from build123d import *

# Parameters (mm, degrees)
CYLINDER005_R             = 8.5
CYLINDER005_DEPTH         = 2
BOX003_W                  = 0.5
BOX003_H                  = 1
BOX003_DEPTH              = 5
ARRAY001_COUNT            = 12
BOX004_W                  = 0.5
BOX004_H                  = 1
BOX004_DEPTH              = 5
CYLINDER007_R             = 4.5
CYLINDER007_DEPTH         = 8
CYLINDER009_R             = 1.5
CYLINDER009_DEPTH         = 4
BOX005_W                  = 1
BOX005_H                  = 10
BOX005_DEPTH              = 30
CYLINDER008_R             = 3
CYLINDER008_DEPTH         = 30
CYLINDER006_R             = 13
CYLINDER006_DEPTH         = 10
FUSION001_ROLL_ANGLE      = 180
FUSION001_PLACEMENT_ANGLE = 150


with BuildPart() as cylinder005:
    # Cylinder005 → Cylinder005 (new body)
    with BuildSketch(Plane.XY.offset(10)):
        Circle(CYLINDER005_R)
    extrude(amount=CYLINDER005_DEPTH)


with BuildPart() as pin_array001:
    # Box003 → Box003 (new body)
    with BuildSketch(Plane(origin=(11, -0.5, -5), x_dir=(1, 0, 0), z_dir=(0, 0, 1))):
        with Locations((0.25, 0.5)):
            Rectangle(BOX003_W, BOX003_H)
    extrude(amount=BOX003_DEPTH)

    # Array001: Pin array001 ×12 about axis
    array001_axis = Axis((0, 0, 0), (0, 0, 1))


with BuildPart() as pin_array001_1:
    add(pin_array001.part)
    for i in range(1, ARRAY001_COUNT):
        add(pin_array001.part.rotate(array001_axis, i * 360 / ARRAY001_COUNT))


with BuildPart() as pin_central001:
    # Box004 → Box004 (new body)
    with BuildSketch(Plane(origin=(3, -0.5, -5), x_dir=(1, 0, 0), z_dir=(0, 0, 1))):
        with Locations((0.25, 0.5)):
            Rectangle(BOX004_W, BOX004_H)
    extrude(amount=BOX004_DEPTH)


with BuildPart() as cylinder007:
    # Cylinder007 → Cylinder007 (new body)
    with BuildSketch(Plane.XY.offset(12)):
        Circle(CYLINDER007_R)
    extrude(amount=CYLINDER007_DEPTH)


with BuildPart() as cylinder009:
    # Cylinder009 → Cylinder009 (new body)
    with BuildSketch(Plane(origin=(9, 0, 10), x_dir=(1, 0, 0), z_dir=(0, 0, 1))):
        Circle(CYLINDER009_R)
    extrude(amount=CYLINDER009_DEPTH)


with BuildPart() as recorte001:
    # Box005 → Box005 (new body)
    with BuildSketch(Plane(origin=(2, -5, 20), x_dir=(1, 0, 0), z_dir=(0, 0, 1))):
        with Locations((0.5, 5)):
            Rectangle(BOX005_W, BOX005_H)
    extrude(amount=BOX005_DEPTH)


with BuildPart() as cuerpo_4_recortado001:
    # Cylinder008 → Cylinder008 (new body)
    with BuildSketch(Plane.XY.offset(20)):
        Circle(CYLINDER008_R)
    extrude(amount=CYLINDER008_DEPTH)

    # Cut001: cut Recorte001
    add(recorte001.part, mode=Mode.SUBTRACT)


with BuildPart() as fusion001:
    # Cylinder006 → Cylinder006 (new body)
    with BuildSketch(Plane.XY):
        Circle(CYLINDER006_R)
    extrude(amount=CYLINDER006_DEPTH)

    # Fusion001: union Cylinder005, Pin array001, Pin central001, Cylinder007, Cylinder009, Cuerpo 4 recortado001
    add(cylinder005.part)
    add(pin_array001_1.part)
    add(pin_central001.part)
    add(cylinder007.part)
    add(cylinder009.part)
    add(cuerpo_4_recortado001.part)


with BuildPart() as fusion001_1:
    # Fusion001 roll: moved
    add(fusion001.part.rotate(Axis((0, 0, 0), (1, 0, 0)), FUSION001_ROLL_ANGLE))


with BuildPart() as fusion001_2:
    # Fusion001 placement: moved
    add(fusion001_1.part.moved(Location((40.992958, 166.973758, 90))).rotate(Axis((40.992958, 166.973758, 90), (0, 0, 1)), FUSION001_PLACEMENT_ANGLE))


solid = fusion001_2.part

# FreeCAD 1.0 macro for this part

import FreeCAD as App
import Part
import Sketcher

V = App.Vector
Q = App.Units.Quantity


def add_polygon(sketch, points):
    """Adds a closed chain of lines whose ends are joined by coincident constraints."""
    first, n = sketch.GeometryCount, len(points)
    for a, b in zip(points, points[1:] + points[:1]):
        sketch.addGeometry(Part.LineSegment(App.Vector(*a, 0), App.Vector(*b, 0)), False)
    for i in range(n):
        sketch.addConstraint(Sketcher.Constraint("Coincident", first + i, 2, first + (i + 1) % n, 1))

doc = App.newDocument("Part")
body = doc.addObject("PartDesign::Body", "Body")

sketch1 = body.newObject("Sketcher::SketchObject", "Sketch")
sketch1.AttachmentSupport = (doc.getObject("XY_Plane"), [""])
sketch1.MapMode = "FlatFace"
sketch1.AttachmentOffset = App.Placement(V(0, 0, 10), App.Rotation())
sketch1.addGeometry(Part.Circle(V(0, 0, 0), V(0, 0, 1), 8), False)
sketch1.addConstraint(Sketcher.Constraint("Coincident", 0, 3, -1, 1))
sketch1.addConstraint(Sketcher.Constraint("Diameter", 0, Q("17 mm")))
pad1 = body.newObject("PartDesign::Pad", "Pad")
pad1.Profile = sketch1
pad1.Length = 2
body2 = doc.addObject("PartDesign::Body", "Body001")

sketch2 = body2.newObject("Sketcher::SketchObject", "Sketch001")
sketch2.AttachmentSupport = (doc.getObject("XY_Plane001"), [""])
sketch2.MapMode = "FlatFace"
sketch2.AttachmentOffset = App.Placement(V(0, 0, -5), App.Rotation())
add_polygon(sketch2, [(11, 0.5), (11, -0.5), (11.5, -0.5), (11.5, 0.5)])
sketch2.addConstraint(Sketcher.Constraint("Vertical", 0))
sketch2.addConstraint(Sketcher.Constraint("Horizontal", 1))
sketch2.addConstraint(Sketcher.Constraint("Vertical", 2))
sketch2.addConstraint(Sketcher.Constraint("Horizontal", 3))
sketch2.addConstraint(Sketcher.Constraint("DistanceY", 0, 2, 0, 1, Q("1 mm")))
sketch2.addConstraint(Sketcher.Constraint("DistanceX", 1, 1, 1, 2, Q("0.5 mm")))
sketch2.addConstraint(Sketcher.Constraint("DistanceX", -1, 1, 0, 2, Q("11 mm")))
sketch2.addConstraint(Sketcher.Constraint("DistanceY", 0, 2, -1, 1, Q("0.5 mm")))
pad2 = body2.newObject("PartDesign::Pad", "Pad001")
pad2.Profile = sketch2
pad2.Length = 5
body3 = doc.addObject("PartDesign::Body", "Body002")
body3.AllowCompound = True
doc.recompute()

body3.BaseFeature = body2
doc.recompute()

body4 = doc.addObject("PartDesign::Body", "Body003")
body4.BaseFeature = body2
body4.Placement = App.Placement(V(0, 0, 0), App.Rotation(V(0, 0, 1), 30))
boolean = body3.newObject("PartDesign::Boolean", "Boolean")
boolean.Type = "Fuse"
boolean.addObjects([body4])
doc.recompute()

body5 = doc.addObject("PartDesign::Body", "Body004")
body5.BaseFeature = body2
body5.Placement = App.Placement(V(0, 0, 0), App.Rotation(V(0, 0, 1), 60))
boolean2 = body3.newObject("PartDesign::Boolean", "Boolean001")
boolean2.Type = "Fuse"
boolean2.addObjects([body5])
doc.recompute()

body6 = doc.addObject("PartDesign::Body", "Body005")
body6.BaseFeature = body2
body6.Placement = App.Placement(V(0, 0, 0), App.Rotation(V(0, 0, 1), 90))
boolean3 = body3.newObject("PartDesign::Boolean", "Boolean002")
boolean3.Type = "Fuse"
boolean3.addObjects([body6])
doc.recompute()

body7 = doc.addObject("PartDesign::Body", "Body006")
body7.BaseFeature = body2
body7.Placement = App.Placement(V(0, 0, 0), App.Rotation(V(0, 0, 1), 120))
boolean4 = body3.newObject("PartDesign::Boolean", "Boolean003")
boolean4.Type = "Fuse"
boolean4.addObjects([body7])
doc.recompute()

body8 = doc.addObject("PartDesign::Body", "Body007")
body8.BaseFeature = body2
body8.Placement = App.Placement(V(0, 0, 0), App.Rotation(V(0, 0, 1), 150))
boolean5 = body3.newObject("PartDesign::Boolean", "Boolean004")
boolean5.Type = "Fuse"
boolean5.addObjects([body8])
doc.recompute()

body9 = doc.addObject("PartDesign::Body", "Body008")
body9.BaseFeature = body2
body9.Placement = App.Placement(V(0, 0, 0), App.Rotation(V(0, 0, 1), 180))
boolean6 = body3.newObject("PartDesign::Boolean", "Boolean005")
boolean6.Type = "Fuse"
boolean6.addObjects([body9])
doc.recompute()

body10 = doc.addObject("PartDesign::Body", "Body009")
body10.BaseFeature = body2
body10.Placement = App.Placement(V(0, 0, 0), App.Rotation(V(0, 0, 1), 210))
boolean7 = body3.newObject("PartDesign::Boolean", "Boolean006")
boolean7.Type = "Fuse"
boolean7.addObjects([body10])
doc.recompute()

body11 = doc.addObject("PartDesign::Body", "Body010")
body11.BaseFeature = body2
body11.Placement = App.Placement(V(0, 0, 0), App.Rotation(V(0, 0, 1), 240))
boolean8 = body3.newObject("PartDesign::Boolean", "Boolean007")
boolean8.Type = "Fuse"
boolean8.addObjects([body11])
doc.recompute()

body12 = doc.addObject("PartDesign::Body", "Body011")
body12.BaseFeature = body2
body12.Placement = App.Placement(V(0, 0, 0), App.Rotation(V(0, 0, 1), 270))
boolean9 = body3.newObject("PartDesign::Boolean", "Boolean008")
boolean9.Type = "Fuse"
boolean9.addObjects([body12])
doc.recompute()

body13 = doc.addObject("PartDesign::Body", "Body012")
body13.BaseFeature = body2
body13.Placement = App.Placement(V(0, 0, 0), App.Rotation(V(0, 0, 1), 300))
boolean10 = body3.newObject("PartDesign::Boolean", "Boolean009")
boolean10.Type = "Fuse"
boolean10.addObjects([body13])
doc.recompute()

body2.Placement = App.Placement(V(0, 0, 0), App.Rotation(V(0, 0, 1), 330))
boolean11 = body3.newObject("PartDesign::Boolean", "Boolean010")
boolean11.Type = "Fuse"
boolean11.addObjects([body2])
body14 = doc.addObject("PartDesign::Body", "Body013")

sketch3 = body14.newObject("Sketcher::SketchObject", "Sketch002")
sketch3.AttachmentSupport = (doc.getObject("XY_Plane013"), [""])
sketch3.MapMode = "FlatFace"
sketch3.AttachmentOffset = App.Placement(V(0, 0, -5), App.Rotation())
add_polygon(sketch3, [(3, 0.5), (3, -0.5), (3.5, -0.5), (3.5, 0.5)])
sketch3.addConstraint(Sketcher.Constraint("Vertical", 0))
sketch3.addConstraint(Sketcher.Constraint("Horizontal", 1))
sketch3.addConstraint(Sketcher.Constraint("Vertical", 2))
sketch3.addConstraint(Sketcher.Constraint("Horizontal", 3))
sketch3.addConstraint(Sketcher.Constraint("DistanceY", 0, 2, 0, 1, Q("1 mm")))
sketch3.addConstraint(Sketcher.Constraint("DistanceX", 1, 1, 1, 2, Q("0.5 mm")))
sketch3.addConstraint(Sketcher.Constraint("DistanceX", -1, 1, 0, 2, Q("3 mm")))
sketch3.addConstraint(Sketcher.Constraint("DistanceY", 0, 2, -1, 1, Q("0.5 mm")))
pad3 = body14.newObject("PartDesign::Pad", "Pad002")
pad3.Profile = sketch3
pad3.Length = 5
body15 = doc.addObject("PartDesign::Body", "Body014")

sketch4 = body15.newObject("Sketcher::SketchObject", "Sketch003")
sketch4.AttachmentSupport = (doc.getObject("XY_Plane014"), [""])
sketch4.MapMode = "FlatFace"
sketch4.AttachmentOffset = App.Placement(V(0, 0, 12), App.Rotation())
sketch4.addGeometry(Part.Circle(V(0, 0, 0), V(0, 0, 1), 4.5), False)
sketch4.addConstraint(Sketcher.Constraint("Coincident", 0, 3, -1, 1))
sketch4.addConstraint(Sketcher.Constraint("Diameter", 0, Q("9 mm")))
pad4 = body15.newObject("PartDesign::Pad", "Pad003")
pad4.Profile = sketch4
pad4.Length = 8
body16 = doc.addObject("PartDesign::Body", "Body015")

sketch5 = body16.newObject("Sketcher::SketchObject", "Sketch004")
sketch5.AttachmentSupport = (doc.getObject("XY_Plane015"), [""])
sketch5.MapMode = "FlatFace"
sketch5.AttachmentOffset = App.Placement(V(0, 0, 10), App.Rotation())
sketch5.addGeometry(Part.Circle(V(9, 0, 0), V(0, 0, 1), 1.5), False)
sketch5.addConstraint(Sketcher.Constraint("PointOnObject", 0, 3, -1))
sketch5.addConstraint(Sketcher.Constraint("Diameter", 0, Q("3 mm")))
sketch5.addConstraint(Sketcher.Constraint("DistanceX", -1, 1, 0, 3, Q("9 mm")))
pad5 = body16.newObject("PartDesign::Pad", "Pad004")
pad5.Profile = sketch5
pad5.Length = 4
body17 = doc.addObject("PartDesign::Body", "Body016")

sketch6 = body17.newObject("Sketcher::SketchObject", "Sketch005")
sketch6.AttachmentSupport = (doc.getObject("XY_Plane016"), [""])
sketch6.MapMode = "FlatFace"
sketch6.AttachmentOffset = App.Placement(V(0, 0, 20), App.Rotation())
add_polygon(sketch6, [(2, 5), (2, -5), (3, -5), (3, 5)])
sketch6.addConstraint(Sketcher.Constraint("Vertical", 0))
sketch6.addConstraint(Sketcher.Constraint("Horizontal", 1))
sketch6.addConstraint(Sketcher.Constraint("Vertical", 2))
sketch6.addConstraint(Sketcher.Constraint("Horizontal", 3))
sketch6.addConstraint(Sketcher.Constraint("DistanceX", 1, 1, 1, 2, Q("1 mm")))
sketch6.addConstraint(Sketcher.Constraint("DistanceY", 0, 2, 0, 1, Q("10 mm")))
sketch6.addConstraint(Sketcher.Constraint("DistanceX", -1, 1, 0, 2, Q("2 mm")))
sketch6.addConstraint(Sketcher.Constraint("DistanceY", 0, 2, -1, 1, Q("5 mm")))
pad6 = body17.newObject("PartDesign::Pad", "Pad005")
pad6.Profile = sketch6
pad6.Length = 30
body18 = doc.addObject("PartDesign::Body", "Body017")

sketch7 = body18.newObject("Sketcher::SketchObject", "Sketch006")
sketch7.AttachmentSupport = (doc.getObject("XY_Plane017"), [""])
sketch7.MapMode = "FlatFace"
sketch7.AttachmentOffset = App.Placement(V(0, 0, 20), App.Rotation())
sketch7.addGeometry(Part.Circle(V(0, 0, 0), V(0, 0, 1), 3), False)
sketch7.addConstraint(Sketcher.Constraint("Coincident", 0, 3, -1, 1))
sketch7.addConstraint(Sketcher.Constraint("Diameter", 0, Q("6 mm")))
pad7 = body18.newObject("PartDesign::Pad", "Pad006")
pad7.Profile = sketch7
pad7.Length = 30
doc.recompute()

boolean12 = body18.newObject("PartDesign::Boolean", "Boolean011")
boolean12.Type = "Cut"
boolean12.addObjects([body17])
body19 = doc.addObject("PartDesign::Body", "Body018")

sketch8 = body19.newObject("Sketcher::SketchObject", "Sketch007")
sketch8.AttachmentSupport = (doc.getObject("XY_Plane018"), [""])
sketch8.MapMode = "FlatFace"
sketch8.addGeometry(Part.Circle(V(0, 0, 0), V(0, 0, 1), 13), False)
sketch8.addConstraint(Sketcher.Constraint("Coincident", 0, 3, -1, 1))
sketch8.addConstraint(Sketcher.Constraint("Diameter", 0, Q("26 mm")))
pad8 = body19.newObject("PartDesign::Pad", "Pad007")
pad8.Profile = sketch8
pad8.Length = 10
doc.recompute()

boolean13 = body19.newObject("PartDesign::Boolean", "Boolean012")
boolean13.Type = "Fuse"
boolean13.addObjects([body])
doc.recompute()

boolean14 = body19.newObject("PartDesign::Boolean", "Boolean013")
boolean14.Type = "Fuse"
boolean14.addObjects([body3])
doc.recompute()

boolean15 = body19.newObject("PartDesign::Boolean", "Boolean014")
boolean15.Type = "Fuse"
boolean15.addObjects([body14])
doc.recompute()

boolean16 = body19.newObject("PartDesign::Boolean", "Boolean015")
boolean16.Type = "Fuse"
boolean16.addObjects([body15])
doc.recompute()

boolean17 = body19.newObject("PartDesign::Boolean", "Boolean016")
boolean17.Type = "Fuse"
boolean17.addObjects([body16])
doc.recompute()

boolean18 = body19.newObject("PartDesign::Boolean", "Boolean017")
boolean18.Type = "Fuse"
boolean18.addObjects([body18])
body20 = doc.addObject("PartDesign::Body", "Body019")
doc.recompute()

body19.Placement = App.Placement(V(0, 0, 0), App.Rotation(V(1, 0, 0), 180))
boolean19 = body20.newObject("PartDesign::Boolean", "Boolean018")
boolean19.Type = "Fuse"
boolean19.addObjects([body19])
body21 = doc.addObject("PartDesign::Body", "Body020")
doc.recompute()

body20.Placement = App.Placement(V(40.992958, 166.973758, 90), App.Rotation(V(0, 0, 1), 150))
boolean20 = body21.newObject("PartDesign::Boolean", "Boolean019")
boolean20.Type = "Fuse"
boolean20.addObjects([body20])

doc.recompute()
